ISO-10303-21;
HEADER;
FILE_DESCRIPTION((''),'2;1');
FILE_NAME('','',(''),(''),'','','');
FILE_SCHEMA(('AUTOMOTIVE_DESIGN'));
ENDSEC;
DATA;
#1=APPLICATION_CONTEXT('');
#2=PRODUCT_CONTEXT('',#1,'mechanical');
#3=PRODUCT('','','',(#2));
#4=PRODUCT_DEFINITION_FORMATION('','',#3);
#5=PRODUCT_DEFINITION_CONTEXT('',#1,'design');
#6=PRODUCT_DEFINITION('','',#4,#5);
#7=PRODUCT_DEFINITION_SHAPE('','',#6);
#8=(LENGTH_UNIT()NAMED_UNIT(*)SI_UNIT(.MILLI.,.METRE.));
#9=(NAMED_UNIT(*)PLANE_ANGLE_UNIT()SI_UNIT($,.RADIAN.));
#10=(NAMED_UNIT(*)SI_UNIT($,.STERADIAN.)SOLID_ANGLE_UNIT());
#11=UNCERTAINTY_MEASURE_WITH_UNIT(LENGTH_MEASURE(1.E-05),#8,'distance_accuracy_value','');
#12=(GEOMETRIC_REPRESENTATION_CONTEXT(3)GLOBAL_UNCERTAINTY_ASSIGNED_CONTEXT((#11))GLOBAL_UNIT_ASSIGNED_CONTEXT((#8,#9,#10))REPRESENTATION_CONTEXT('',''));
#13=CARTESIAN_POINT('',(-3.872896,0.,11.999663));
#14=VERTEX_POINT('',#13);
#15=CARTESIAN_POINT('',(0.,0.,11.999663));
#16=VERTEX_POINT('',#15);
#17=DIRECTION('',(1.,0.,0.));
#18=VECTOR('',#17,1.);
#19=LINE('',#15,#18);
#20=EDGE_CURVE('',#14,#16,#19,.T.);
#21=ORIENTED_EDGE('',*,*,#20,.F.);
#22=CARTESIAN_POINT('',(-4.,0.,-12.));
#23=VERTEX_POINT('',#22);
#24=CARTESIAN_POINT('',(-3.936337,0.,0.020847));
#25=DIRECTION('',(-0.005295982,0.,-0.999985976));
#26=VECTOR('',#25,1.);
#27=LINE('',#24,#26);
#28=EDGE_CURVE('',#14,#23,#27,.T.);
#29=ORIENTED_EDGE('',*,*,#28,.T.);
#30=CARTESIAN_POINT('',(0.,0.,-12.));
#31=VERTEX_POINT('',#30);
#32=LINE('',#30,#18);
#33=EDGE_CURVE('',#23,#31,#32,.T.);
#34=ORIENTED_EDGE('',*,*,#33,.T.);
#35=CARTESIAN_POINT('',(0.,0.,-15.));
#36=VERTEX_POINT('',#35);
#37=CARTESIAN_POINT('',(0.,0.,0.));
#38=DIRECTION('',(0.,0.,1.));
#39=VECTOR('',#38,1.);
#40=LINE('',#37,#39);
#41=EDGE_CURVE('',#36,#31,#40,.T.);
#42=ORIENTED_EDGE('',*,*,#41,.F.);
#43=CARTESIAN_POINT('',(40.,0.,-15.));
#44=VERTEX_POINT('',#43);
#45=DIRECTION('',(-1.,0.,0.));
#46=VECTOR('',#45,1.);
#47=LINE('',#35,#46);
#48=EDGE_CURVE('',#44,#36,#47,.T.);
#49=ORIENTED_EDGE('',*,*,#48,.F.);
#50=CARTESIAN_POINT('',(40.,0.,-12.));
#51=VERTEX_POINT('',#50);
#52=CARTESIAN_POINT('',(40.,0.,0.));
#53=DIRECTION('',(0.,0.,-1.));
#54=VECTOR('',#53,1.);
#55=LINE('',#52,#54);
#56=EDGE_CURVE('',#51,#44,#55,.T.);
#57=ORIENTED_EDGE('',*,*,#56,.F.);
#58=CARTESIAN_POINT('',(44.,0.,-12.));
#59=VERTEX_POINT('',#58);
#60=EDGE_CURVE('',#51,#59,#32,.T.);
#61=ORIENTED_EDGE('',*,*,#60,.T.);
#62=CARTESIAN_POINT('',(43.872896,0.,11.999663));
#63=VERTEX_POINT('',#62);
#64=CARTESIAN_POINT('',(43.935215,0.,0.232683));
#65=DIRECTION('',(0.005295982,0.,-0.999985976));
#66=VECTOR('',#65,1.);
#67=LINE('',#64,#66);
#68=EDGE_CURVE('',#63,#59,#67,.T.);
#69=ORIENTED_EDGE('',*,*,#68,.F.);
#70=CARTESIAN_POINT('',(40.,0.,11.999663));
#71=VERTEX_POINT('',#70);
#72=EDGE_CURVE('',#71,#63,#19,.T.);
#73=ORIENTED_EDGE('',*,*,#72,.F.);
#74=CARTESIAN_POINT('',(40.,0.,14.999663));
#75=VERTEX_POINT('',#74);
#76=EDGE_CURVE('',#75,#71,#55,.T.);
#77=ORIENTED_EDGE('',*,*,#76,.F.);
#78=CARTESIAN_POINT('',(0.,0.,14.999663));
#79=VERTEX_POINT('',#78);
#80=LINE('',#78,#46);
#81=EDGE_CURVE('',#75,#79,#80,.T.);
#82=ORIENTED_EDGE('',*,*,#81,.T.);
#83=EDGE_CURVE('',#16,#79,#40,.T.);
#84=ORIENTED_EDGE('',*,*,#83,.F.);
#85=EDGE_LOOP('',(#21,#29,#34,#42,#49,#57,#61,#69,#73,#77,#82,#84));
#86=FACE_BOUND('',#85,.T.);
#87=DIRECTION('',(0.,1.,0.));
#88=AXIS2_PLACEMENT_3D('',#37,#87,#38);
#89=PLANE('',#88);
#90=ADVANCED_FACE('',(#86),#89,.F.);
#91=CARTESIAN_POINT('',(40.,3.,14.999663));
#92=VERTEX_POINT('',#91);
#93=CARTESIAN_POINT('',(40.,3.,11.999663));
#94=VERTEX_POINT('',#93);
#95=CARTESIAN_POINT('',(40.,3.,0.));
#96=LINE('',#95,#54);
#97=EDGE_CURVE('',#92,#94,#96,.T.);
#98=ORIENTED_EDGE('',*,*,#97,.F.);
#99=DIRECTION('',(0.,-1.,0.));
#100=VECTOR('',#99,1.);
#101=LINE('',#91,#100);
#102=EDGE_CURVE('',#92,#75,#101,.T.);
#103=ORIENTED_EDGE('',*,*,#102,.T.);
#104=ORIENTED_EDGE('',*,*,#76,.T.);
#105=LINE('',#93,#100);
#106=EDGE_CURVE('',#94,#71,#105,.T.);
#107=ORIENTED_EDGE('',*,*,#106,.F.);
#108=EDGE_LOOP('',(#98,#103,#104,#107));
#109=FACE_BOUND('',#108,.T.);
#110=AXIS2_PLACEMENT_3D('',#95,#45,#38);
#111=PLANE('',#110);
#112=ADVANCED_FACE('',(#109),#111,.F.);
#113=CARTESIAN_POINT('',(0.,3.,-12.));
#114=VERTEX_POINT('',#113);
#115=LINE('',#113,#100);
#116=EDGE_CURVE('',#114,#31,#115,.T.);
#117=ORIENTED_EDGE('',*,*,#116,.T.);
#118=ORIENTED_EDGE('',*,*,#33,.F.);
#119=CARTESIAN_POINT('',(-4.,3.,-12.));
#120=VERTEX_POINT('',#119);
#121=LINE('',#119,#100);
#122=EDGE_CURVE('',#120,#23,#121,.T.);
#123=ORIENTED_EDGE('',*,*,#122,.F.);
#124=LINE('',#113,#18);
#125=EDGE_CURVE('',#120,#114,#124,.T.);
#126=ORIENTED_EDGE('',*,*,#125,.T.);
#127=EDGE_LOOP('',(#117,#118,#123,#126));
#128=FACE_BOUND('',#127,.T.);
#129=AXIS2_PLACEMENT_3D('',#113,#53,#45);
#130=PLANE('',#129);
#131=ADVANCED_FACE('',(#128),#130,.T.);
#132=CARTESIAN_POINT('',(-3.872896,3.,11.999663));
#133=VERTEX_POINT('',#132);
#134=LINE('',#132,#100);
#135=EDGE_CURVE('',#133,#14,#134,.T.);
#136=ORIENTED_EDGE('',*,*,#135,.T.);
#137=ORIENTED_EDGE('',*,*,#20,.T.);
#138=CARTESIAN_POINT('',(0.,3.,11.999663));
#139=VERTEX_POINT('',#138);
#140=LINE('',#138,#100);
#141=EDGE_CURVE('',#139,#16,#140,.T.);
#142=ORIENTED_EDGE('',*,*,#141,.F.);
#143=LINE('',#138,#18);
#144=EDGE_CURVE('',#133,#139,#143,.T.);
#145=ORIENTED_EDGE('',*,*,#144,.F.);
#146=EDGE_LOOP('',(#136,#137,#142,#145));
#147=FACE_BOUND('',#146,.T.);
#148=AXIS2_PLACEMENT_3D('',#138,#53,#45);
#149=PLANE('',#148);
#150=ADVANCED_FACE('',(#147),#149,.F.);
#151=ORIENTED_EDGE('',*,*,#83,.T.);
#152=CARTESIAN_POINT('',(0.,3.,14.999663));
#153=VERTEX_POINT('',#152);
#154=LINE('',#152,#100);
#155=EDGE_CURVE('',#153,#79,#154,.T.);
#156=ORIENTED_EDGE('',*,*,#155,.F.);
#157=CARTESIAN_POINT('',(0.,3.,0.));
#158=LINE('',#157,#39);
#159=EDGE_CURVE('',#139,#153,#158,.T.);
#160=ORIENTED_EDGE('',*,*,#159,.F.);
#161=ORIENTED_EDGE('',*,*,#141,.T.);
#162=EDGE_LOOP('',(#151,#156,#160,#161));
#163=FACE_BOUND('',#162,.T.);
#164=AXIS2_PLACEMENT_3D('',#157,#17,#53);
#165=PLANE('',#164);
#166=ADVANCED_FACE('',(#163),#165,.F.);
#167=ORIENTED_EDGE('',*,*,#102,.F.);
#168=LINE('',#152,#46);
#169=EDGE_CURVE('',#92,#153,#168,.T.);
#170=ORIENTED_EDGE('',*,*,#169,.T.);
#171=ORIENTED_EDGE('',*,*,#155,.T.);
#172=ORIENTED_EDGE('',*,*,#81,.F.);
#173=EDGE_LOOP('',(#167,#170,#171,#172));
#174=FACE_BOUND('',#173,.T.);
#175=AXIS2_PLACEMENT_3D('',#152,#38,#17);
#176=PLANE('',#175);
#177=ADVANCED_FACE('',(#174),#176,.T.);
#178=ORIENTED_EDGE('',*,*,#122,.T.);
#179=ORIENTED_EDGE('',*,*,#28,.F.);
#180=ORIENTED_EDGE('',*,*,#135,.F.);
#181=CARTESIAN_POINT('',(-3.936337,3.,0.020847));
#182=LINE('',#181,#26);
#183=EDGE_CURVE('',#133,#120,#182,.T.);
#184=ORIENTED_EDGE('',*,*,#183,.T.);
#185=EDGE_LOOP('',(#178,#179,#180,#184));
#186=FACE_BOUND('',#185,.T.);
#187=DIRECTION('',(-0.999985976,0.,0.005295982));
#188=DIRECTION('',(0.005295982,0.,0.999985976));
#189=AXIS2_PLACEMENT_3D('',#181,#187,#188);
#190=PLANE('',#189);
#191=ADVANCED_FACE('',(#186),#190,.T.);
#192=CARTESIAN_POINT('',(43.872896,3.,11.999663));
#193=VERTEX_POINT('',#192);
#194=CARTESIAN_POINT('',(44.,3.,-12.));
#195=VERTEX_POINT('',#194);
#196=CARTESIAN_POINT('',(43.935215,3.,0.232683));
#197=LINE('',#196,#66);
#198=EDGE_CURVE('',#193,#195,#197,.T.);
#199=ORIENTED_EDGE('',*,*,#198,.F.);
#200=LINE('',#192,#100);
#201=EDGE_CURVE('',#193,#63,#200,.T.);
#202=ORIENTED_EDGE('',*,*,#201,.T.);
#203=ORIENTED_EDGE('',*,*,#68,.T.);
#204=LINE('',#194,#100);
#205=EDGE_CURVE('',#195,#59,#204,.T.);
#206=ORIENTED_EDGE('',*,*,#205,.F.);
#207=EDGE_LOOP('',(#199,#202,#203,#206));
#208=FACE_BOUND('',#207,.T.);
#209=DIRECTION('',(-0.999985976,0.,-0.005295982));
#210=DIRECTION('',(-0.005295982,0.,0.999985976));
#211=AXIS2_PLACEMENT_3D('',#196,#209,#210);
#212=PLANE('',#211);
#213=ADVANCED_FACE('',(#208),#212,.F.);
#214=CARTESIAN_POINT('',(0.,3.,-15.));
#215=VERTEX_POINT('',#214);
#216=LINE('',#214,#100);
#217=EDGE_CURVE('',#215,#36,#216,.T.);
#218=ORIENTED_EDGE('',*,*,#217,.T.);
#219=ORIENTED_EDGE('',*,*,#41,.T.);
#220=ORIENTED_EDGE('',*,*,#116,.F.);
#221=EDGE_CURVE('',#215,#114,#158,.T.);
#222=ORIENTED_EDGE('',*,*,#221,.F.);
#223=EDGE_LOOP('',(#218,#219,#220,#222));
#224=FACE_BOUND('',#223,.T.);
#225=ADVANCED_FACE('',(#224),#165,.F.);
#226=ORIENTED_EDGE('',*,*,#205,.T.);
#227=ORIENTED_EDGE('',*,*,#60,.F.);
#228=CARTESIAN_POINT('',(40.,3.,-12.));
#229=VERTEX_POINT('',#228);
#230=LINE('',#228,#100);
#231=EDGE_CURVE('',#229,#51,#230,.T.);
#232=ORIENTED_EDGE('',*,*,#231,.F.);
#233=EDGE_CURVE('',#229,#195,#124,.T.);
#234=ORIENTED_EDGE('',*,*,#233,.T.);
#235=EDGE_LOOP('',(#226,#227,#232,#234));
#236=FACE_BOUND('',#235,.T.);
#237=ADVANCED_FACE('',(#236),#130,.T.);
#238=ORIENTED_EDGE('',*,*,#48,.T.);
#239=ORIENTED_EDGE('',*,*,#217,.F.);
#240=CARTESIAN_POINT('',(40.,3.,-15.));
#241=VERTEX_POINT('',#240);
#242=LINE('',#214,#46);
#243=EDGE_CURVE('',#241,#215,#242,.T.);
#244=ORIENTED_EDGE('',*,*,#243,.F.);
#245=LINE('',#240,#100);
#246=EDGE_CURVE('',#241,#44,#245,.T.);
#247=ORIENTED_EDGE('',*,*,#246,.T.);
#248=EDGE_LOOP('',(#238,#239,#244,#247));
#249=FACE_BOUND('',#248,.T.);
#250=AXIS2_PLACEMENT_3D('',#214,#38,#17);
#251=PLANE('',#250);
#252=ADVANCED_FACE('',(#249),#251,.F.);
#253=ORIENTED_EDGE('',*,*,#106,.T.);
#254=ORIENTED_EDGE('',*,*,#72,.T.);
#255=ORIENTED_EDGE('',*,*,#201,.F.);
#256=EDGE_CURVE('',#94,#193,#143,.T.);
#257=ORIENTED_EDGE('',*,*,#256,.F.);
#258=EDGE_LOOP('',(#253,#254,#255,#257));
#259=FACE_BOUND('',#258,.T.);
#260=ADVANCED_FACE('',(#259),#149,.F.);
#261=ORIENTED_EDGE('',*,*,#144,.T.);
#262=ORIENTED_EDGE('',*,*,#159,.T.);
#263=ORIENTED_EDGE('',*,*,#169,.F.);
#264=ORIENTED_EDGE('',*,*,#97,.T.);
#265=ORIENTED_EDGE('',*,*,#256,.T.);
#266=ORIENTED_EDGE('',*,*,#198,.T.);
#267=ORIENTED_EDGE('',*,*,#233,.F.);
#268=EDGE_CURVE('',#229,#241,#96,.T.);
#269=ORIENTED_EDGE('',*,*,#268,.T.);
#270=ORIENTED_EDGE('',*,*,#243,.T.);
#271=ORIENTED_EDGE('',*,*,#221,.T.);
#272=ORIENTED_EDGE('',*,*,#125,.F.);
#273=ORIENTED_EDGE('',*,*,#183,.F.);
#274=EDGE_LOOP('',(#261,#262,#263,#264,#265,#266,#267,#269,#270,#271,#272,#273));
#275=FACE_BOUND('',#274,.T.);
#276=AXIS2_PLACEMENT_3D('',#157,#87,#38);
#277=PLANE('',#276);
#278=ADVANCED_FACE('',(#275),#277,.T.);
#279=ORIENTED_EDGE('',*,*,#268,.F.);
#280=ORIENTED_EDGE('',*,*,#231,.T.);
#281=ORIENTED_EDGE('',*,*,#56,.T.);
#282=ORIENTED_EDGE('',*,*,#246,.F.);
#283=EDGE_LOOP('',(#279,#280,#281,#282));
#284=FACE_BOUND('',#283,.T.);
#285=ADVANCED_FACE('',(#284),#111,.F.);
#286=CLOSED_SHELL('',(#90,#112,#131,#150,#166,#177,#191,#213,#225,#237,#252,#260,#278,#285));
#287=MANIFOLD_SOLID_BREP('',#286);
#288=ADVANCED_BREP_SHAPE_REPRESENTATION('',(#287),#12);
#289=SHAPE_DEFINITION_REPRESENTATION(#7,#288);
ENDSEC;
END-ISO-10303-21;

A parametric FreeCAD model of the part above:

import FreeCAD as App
import Part
import Sketcher
Q = App.Units.Quantity


def add_polygon(sketch, points):
    """Adds a closed chain of lines whose ends are joined by coincident constraints."""
    first, n = sketch.GeometryCount, len(points)
    for a, b in zip(points, points[1:] + points[:1]):
        sketch.addGeometry(Part.LineSegment(App.Vector(*a, 0), App.Vector(*b, 0)), False)
    for i in range(n):
        sketch.addConstraint(Sketcher.Constraint("Coincident", first + i, 2, first + (i + 1) % n, 1))

doc = App.newDocument("Part")
params = doc.addObject("Spreadsheet::Sheet", "Params")
for row, (alias, value) in enumerate([
    ("sketch1_width", "4 mm"),
    ("sketch1_width2", "40 mm"),
    ("sketch1_height", "3 mm"),
    ("sketch1_length", "24 mm"),
    ("pad1_length", "3 mm"),
], start=1):
    params.set(f"A{row}", alias)
    params.set(f"B{row}", "=" + value)
    params.setAlias(f"B{row}", alias)

body = doc.addObject("PartDesign::Body", "Body")

sketch1 = body.newObject("Sketcher::SketchObject", "Sketch")
sketch1.AttachmentSupport = (doc.getObject("XZ_Plane"), [""])
sketch1.MapMode = "FlatFace"
add_polygon(sketch1, [(40, 15), (40, 12), (43.9, 12), (44, -12), (40, -12), (40, -15), (0, -15), (0, -12), (-4, -12), (-3.9, 12), (0, 12), (0, 15)])
sketch1.addConstraint(Sketcher.Constraint("Vertical", 0))
sketch1.addConstraint(Sketcher.Constraint("Horizontal", 1))
sketch1.addConstraint(Sketcher.Constraint("Horizontal", 3))
sketch1.addConstraint(Sketcher.Constraint("Vertical", 4))
sketch1.addConstraint(Sketcher.Constraint("Horizontal", 5))
sketch1.addConstraint(Sketcher.Constraint("Vertical", 6))
sketch1.addConstraint(Sketcher.Constraint("Horizontal", 7))
sketch1.addConstraint(Sketcher.Constraint("Horizontal", 9))
sketch1.addConstraint(Sketcher.Constraint("Vertical", 10))
sketch1.addConstraint(Sketcher.Constraint("Horizontal", 11))
sketch1.addConstraint(Sketcher.Constraint("PointOnObject", 5, 2, -2))
sketch1.addConstraint(Sketcher.Constraint("PointOnObject", 9, 2, -2))
sketch1.addConstraint(Sketcher.Constraint("Horizontal", 3, 2, 6, 2))
sketch1.addConstraint(Sketcher.Constraint("Horizontal", 1, 2, 8, 2))
sketch1.addConstraint(Sketcher.Constraint("Vertical", 0, 2, 3, 2))
sketch1.addConstraint(Sketcher.Constraint("Equal", 3, 7))
sketch1.addConstraint(Sketcher.Constraint("Equal", 1, 9))
sketch1.addConstraint(Sketcher.Constraint("Equal", 0, 4))
sketch1.addConstraint(Sketcher.Constraint("DistanceX", 3, 2, 3, 1, Q("4 mm")))
sketch1.addConstraint(Sketcher.Constraint("DistanceX", 5, 2, 5, 1, Q("40 mm")))
sketch1.addConstraint(Sketcher.Constraint("DistanceY", 0, 2, 0, 1, Q("3 mm")))
sketch1.addConstraint(Sketcher.Constraint("Distance", 2, Q("24 mm")))
sketch1.addConstraint(Sketcher.Constraint("DistanceY", 2, 2, -1, 1, Q("12 mm")))
sketch1.addConstraint(Sketcher.Constraint("DistanceX", 1, 1, 1, 2, Q("3.872896 mm")))
sketch1.setExpression("Constraints[30]", "Params.sketch1_width")
sketch1.setExpression("Constraints[31]", "Params.sketch1_width2")
sketch1.setExpression("Constraints[32]", "Params.sketch1_height")
sketch1.setExpression("Constraints[33]", "Params.sketch1_length")
pad1 = body.newObject("PartDesign::Pad", "Pad")
pad1.Profile = sketch1
pad1.setExpression("Length", "Params.pad1_length")
pad1.Reversed = True

doc.recompute()
